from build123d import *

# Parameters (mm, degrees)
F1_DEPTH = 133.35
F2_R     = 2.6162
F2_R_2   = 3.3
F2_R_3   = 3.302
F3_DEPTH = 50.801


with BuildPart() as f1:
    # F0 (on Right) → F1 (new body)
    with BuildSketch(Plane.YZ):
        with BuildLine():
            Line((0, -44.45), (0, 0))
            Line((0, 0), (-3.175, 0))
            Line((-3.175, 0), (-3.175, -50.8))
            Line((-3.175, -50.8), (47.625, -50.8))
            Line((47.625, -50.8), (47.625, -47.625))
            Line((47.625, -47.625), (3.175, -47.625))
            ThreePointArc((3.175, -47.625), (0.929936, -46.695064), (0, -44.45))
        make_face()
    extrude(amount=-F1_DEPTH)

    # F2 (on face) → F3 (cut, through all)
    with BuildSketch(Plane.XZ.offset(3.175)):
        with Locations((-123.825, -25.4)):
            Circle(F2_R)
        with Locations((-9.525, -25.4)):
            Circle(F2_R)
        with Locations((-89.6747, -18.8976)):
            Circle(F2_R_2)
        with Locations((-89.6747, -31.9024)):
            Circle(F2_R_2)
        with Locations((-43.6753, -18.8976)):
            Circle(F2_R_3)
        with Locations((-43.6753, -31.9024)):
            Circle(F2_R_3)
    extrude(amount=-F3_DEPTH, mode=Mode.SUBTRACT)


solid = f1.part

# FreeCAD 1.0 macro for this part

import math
import FreeCAD as App
import Part
import Sketcher

V = App.Vector
Q = App.Units.Quantity

doc = App.newDocument("Part")
body = doc.addObject("PartDesign::Body", "Body")

# Sketch on YZ plane
sketch1 = body.newObject("Sketcher::SketchObject", "Sketch")
sketch1.AttachmentSupport = (doc.getObject("YZ_Plane"), [""])
sketch1.MapMode = "FlatFace"
sketch1.addGeometry(Part.LineSegment(V(0, -44.5, 0), V(0, 0, 0)), False)
sketch1.addGeometry(Part.LineSegment(V(0, 0, 0), V(-3.2, 0, 0)), False)
sketch1.addGeometry(Part.LineSegment(V(-3.2, 0, 0), V(-3.2, -50.8, 0)), False)
sketch1.addGeometry(Part.LineSegment(V(-3.2, -50.8, 0), V(47.6, -50.8, 0)), False)
sketch1.addGeometry(Part.LineSegment(V(47.6, -50.8, 0), V(47.6, -47.6, 0)), False)
sketch1.addGeometry(Part.LineSegment(V(47.6, -47.6, 0), V(3.2, -47.6, 0)), False)
sketch1.addGeometry(Part.ArcOfCircle(Part.Circle(V(3.2, -44.4, 0), V(0, 0, 1), 3.2), math.radians(-180), math.radians(-90)), False)
sketch1.addConstraint(Sketcher.Constraint("Coincident", 0, 2, 1, 1))
sketch1.addConstraint(Sketcher.Constraint("Coincident", 1, 2, 2, 1))
sketch1.addConstraint(Sketcher.Constraint("Coincident", 2, 2, 3, 1))
sketch1.addConstraint(Sketcher.Constraint("Coincident", 3, 2, 4, 1))
sketch1.addConstraint(Sketcher.Constraint("Coincident", 4, 2, 5, 1))
sketch1.addConstraint(Sketcher.Constraint("Tangent", 5, 2, 6, 2))
sketch1.addConstraint(Sketcher.Constraint("Tangent", 6, 1, 0, 1))
sketch1.addConstraint(Sketcher.Constraint("Vertical", 0))
sketch1.addConstraint(Sketcher.Constraint("Horizontal", 1))
sketch1.addConstraint(Sketcher.Constraint("Vertical", 2))
sketch1.addConstraint(Sketcher.Constraint("Horizontal", 3))
sketch1.addConstraint(Sketcher.Constraint("Vertical", 4))
sketch1.addConstraint(Sketcher.Constraint("Horizontal", 5))
sketch1.addConstraint(Sketcher.Constraint("Coincident", 0, 2, -1, 1))
sketch1.addConstraint(Sketcher.Constraint("Equal", 5, 0))
sketch1.addConstraint(Sketcher.Constraint("Equal", 3, 2))
sketch1.addConstraint(Sketcher.Constraint("DistanceX", 3, 1, 3, 2, Q("2 in")))
sketch1.addConstraint(Sketcher.Constraint("Radius", 6, Q("0.125 in")))
sketch1.addConstraint(Sketcher.Constraint("DistanceX", 5, 2, 5, 1, Q("1.75 in")))
pad1 = body.newObject("PartDesign::Pad", "Pad")
pad1.Profile = sketch1
pad1.Length = Q("5.25 in")
pad1.Reversed = True

# Sketch on XZ plane
sketch2 = body.newObject("Sketcher::SketchObject", "Sketch001")
sketch2.AttachmentSupport = (doc.getObject("XZ_Plane"), [""])
sketch2.MapMode = "FlatFace"
sketch2.AttachmentOffset = App.Placement(V(0, 0, 0.125 * 25.4), App.Rotation())
sketch2.addGeometry(Part.Circle(V(-123.8, -25.4, 0), V(0, 0, 1), 2.6), False)
sketch2.addGeometry(Part.Circle(V(-9.5, -25.4, 0), V(0, 0, 1), 2.6), False)
sketch2.addGeometry(Part.Circle(V(-89.7, -18.9, 0), V(0, 0, 1), 3.3), False)
sketch2.addGeometry(Part.Circle(V(-89.7, -31.9, 0), V(0, 0, 1), 3.3), False)
sketch2.addGeometry(Part.Circle(V(-43.7, -18.9, 0), V(0, 0, 1), 3.3), False)
sketch2.addGeometry(Part.Circle(V(-43.7, -31.9, 0), V(0, 0, 1), 3.3), False)
sketch2.addConstraint(Sketcher.Constraint("Equal", 0, 1))
sketch2.addConstraint(Sketcher.Constraint("Equal", 2, 3))
sketch2.addConstraint(Sketcher.Constraint("Equal", 4, 5))
sketch2.addConstraint(Sketcher.Constraint("Horizontal", 0, 3, 1, 3))
sketch2.addConstraint(Sketcher.Constraint("Horizontal", 2, 3, 4, 3))
sketch2.addConstraint(Sketcher.Constraint("Horizontal", 3, 3, 5, 3))
sketch2.addConstraint(Sketcher.Constraint("Vertical", 2, 3, 3, 3))
sketch2.addConstraint(Sketcher.Constraint("Vertical", 4, 3, 5, 3))
sketch2.addConstraint(Sketcher.Constraint("Diameter", 4, Q("0.26 in")))
sketch2.addConstraint(Sketcher.Constraint("Diameter", 0, Q("0.206 in")))
sketch2.addConstraint(Sketcher.Constraint("DistanceY", 0, 3, -1, 1, Q("1 in")))
sketch2.addConstraint(Sketcher.Constraint("DistanceX", 0, 3, 1, 3, Q("4.5 in")))
sketch2.addConstraint(Sketcher.Constraint("Diameter", 2, 6.6))
sketch2.addConstraint(Sketcher.Constraint("DistanceX", 0, 3, -1, 1, Q("4.875 in")))
sketch2.addConstraint(Sketcher.Constraint("DistanceY", 2, 3, -1, 1, Q("0.744 in")))
sketch2.addConstraint(Sketcher.Constraint("DistanceY", 3, 3, -1, 1, Q("1.256 in")))
sketch2.addConstraint(Sketcher.Constraint("DistanceX", 2, 3, 4, 3, Q("1.811 in")))
sketch2.addConstraint(Sketcher.Constraint("DistanceX", 2, 3, -1, 1, Q("3.5305 in")))
pocket1 = body.newObject("PartDesign::Pocket", "Pocket")
pocket1.Profile = sketch2
pocket1.Type = "ThroughAll"

doc.recompute()
